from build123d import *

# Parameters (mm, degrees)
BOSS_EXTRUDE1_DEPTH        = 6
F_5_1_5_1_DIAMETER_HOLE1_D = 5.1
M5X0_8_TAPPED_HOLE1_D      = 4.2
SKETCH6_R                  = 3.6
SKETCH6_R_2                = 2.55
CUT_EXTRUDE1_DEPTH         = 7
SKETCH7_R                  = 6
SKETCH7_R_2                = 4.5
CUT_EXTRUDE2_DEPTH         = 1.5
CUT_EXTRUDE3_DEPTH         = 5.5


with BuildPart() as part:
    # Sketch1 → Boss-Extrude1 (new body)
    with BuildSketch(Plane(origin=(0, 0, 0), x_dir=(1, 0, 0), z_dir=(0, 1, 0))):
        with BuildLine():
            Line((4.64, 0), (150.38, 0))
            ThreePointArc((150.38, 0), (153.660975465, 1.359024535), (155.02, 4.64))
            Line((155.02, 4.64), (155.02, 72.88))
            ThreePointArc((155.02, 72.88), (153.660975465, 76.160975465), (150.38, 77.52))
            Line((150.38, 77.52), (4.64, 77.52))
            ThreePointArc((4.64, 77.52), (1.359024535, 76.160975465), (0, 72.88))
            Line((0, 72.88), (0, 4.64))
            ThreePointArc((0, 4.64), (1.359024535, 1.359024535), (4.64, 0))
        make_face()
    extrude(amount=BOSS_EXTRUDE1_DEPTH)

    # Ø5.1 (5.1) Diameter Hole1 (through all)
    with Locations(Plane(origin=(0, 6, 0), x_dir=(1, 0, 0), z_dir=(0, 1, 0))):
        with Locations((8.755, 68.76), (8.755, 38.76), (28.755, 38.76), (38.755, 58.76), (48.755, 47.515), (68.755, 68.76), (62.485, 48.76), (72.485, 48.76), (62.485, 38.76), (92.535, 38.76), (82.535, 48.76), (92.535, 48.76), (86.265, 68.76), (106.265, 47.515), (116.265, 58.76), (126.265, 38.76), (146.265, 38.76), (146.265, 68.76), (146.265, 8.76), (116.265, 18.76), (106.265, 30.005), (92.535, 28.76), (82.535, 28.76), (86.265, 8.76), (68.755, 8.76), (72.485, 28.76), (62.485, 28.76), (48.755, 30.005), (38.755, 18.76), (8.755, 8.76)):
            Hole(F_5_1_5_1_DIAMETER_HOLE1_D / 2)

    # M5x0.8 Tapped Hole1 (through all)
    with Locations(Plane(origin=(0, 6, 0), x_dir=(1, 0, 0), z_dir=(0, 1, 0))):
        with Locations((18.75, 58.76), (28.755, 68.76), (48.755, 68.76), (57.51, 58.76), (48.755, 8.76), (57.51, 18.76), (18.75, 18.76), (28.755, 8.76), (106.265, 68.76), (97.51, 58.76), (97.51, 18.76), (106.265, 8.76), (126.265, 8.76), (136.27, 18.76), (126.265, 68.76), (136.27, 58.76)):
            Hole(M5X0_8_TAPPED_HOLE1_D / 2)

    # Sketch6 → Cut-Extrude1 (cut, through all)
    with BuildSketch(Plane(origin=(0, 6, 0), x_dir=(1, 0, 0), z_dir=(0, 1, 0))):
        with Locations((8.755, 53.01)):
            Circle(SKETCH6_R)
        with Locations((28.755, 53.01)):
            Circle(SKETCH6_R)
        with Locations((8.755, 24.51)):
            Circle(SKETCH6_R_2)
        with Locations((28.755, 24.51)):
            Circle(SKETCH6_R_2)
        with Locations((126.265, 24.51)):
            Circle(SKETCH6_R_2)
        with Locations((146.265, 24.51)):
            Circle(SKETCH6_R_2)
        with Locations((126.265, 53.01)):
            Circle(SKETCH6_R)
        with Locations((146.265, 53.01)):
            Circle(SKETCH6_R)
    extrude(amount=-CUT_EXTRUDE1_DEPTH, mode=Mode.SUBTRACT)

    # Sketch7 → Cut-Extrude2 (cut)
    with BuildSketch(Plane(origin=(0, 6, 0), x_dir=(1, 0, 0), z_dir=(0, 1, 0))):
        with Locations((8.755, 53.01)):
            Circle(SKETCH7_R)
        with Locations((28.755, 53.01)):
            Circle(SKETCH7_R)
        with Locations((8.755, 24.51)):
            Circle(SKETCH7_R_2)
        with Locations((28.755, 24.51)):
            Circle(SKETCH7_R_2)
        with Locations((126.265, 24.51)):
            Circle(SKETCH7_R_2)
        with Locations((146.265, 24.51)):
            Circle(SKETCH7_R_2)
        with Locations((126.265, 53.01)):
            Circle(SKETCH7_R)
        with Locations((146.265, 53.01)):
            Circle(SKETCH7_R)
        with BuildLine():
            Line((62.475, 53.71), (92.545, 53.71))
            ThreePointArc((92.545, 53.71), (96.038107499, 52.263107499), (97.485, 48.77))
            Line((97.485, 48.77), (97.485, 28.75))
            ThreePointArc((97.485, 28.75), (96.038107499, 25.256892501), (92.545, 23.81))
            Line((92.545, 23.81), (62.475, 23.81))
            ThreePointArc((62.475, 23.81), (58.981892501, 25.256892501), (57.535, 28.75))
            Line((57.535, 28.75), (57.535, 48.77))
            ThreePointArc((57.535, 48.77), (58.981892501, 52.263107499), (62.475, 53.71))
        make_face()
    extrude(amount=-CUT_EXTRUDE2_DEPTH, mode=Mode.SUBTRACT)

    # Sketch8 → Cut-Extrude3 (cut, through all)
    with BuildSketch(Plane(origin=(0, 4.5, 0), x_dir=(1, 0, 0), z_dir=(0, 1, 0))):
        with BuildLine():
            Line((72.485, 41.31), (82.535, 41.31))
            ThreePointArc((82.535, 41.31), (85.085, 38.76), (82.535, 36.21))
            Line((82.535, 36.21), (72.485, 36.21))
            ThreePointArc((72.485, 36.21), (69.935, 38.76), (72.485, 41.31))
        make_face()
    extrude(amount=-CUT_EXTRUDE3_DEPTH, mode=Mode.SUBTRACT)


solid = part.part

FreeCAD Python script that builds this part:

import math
import FreeCAD as App
import Part
import Sketcher
from FreeCAD import Vector
Q = App.Units.Quantity

doc = App.newDocument("Part")
body = doc.addObject("PartDesign::Body", "Body")

sketch1 = body.newObject("Sketcher::SketchObject", "Sketch")
sketch1.AttachmentSupport = (doc.getObject("XZ_Plane"), [""])
sketch1.MapMode = "FlatFace"
sketch1.addGeometry(Part.LineSegment(Vector(4.6, 0, 0), Vector(150.4, 0, 0)), False)
sketch1.addGeometry(Part.ArcOfCircle(Part.Circle(Vector(150.4, -4.6, 0), Vector(0, 0, 1), 4.6), math.radians(0), math.radians(90)), False)
sketch1.addGeometry(Part.LineSegment(Vector(155, -4.6, 0), Vector(155, -72.9, 0)), False)
sketch1.addGeometry(Part.ArcOfCircle(Part.Circle(Vector(150.4, -72.9, 0), Vector(0, 0, 1), 4.6), math.radians(-90), math.radians(0)), False)
sketch1.addGeometry(Part.LineSegment(Vector(150.4, -77.5, 0), Vector(4.6, -77.5, 0)), False)
sketch1.addGeometry(Part.ArcOfCircle(Part.Circle(Vector(4.6, -72.9, 0), Vector(0, 0, 1), 4.6), math.radians(180), math.radians(270)), False)
sketch1.addGeometry(Part.LineSegment(Vector(0, -72.9, 0), Vector(0, -4.6, 0)), False)
sketch1.addGeometry(Part.ArcOfCircle(Part.Circle(Vector(4.6, -4.6, 0), Vector(0, 0, 1), 4.6), math.radians(90), math.radians(180)), False)
sketch1.addConstraint(Sketcher.Constraint("Tangent", 0, 2, 1, 2))
sketch1.addConstraint(Sketcher.Constraint("Tangent", 1, 1, 2, 1))
sketch1.addConstraint(Sketcher.Constraint("Tangent", 2, 2, 3, 2))
sketch1.addConstraint(Sketcher.Constraint("Tangent", 3, 1, 4, 1))
sketch1.addConstraint(Sketcher.Constraint("Tangent", 4, 2, 5, 2))
sketch1.addConstraint(Sketcher.Constraint("Tangent", 5, 1, 6, 1))
sketch1.addConstraint(Sketcher.Constraint("Tangent", 6, 2, 7, 2))
sketch1.addConstraint(Sketcher.Constraint("Tangent", 7, 1, 0, 1))
sketch1.addConstraint(Sketcher.Constraint("Horizontal", 0))
sketch1.addConstraint(Sketcher.Constraint("Vertical", 2))
sketch1.addConstraint(Sketcher.Constraint("Horizontal", 4))
sketch1.addConstraint(Sketcher.Constraint("Vertical", 6))
sketch1.addConstraint(Sketcher.Constraint("Equal", 1, 3))
sketch1.addConstraint(Sketcher.Constraint("Equal", 3, 5))
sketch1.addConstraint(Sketcher.Constraint("Equal", 5, 7))
sketch1.addConstraint(Sketcher.Constraint("PointOnObject", 0, 2, -1))
sketch1.addConstraint(Sketcher.Constraint("PointOnObject", 5, 1, -2))
sketch1.addConstraint(Sketcher.Constraint("Radius", 1, Q("4.64 mm")))
sketch1.addConstraint(Sketcher.Constraint("DistanceX", 0, 1, 0, 2, Q("145.74 mm")))
sketch1.addConstraint(Sketcher.Constraint("DistanceY", 2, 2, 2, 1, Q("68.24 mm")))
pad1 = body.newObject("PartDesign::Pad", "Pad")
pad1.Profile = sketch1
pad1.Length = 6
pad1.Reversed = True

sketch2 = body.newObject("Sketcher::SketchObject", "Sketch001")
sketch2.AttachmentSupport = (doc.getObject("XZ_Plane"), [""])
sketch2.MapMode = "FlatFace"
sketch2.AttachmentOffset = App.Placement(Vector(0, 0, -6), App.Rotation())
sketch2.addGeometry(Part.Circle(Vector(8.8, -68.8, 0), Vector(0, 0, 1), 2.5), False)
sketch2.addGeometry(Part.Circle(Vector(8.8, -38.8, 0), Vector(0, 0, 1), 2.5), False)
sketch2.addGeometry(Part.Circle(Vector(28.8, -38.8, 0), Vector(0, 0, 1), 2.5), False)
sketch2.addGeometry(Part.Circle(Vector(38.8, -58.8, 0), Vector(0, 0, 1), 2.5), False)
sketch2.addGeometry(Part.Circle(Vector(48.8, -47.5, 0), Vector(0, 0, 1), 2.5), False)
sketch2.addGeometry(Part.Circle(Vector(68.8, -68.8, 0), Vector(0, 0, 1), 2.5), False)
sketch2.addGeometry(Part.Circle(Vector(62.5, -48.8, 0), Vector(0, 0, 1), 2.5), False)
sketch2.addGeometry(Part.Circle(Vector(72.5, -48.8, 0), Vector(0, 0, 1), 2.5), False)
sketch2.addGeometry(Part.Circle(Vector(62.5, -38.8, 0), Vector(0, 0, 1), 2.5), False)
sketch2.addGeometry(Part.Circle(Vector(92.5, -38.8, 0), Vector(0, 0, 1), 2.5), False)
sketch2.addGeometry(Part.Circle(Vector(82.5, -48.8, 0), Vector(0, 0, 1), 2.5), False)
sketch2.addGeometry(Part.Circle(Vector(92.5, -48.8, 0), Vector(0, 0, 1), 2.5), False)
sketch2.addGeometry(Part.Circle(Vector(86.3, -68.8, 0), Vector(0, 0, 1), 2.5), False)
sketch2.addGeometry(Part.Circle(Vector(106.3, -47.5, 0), Vector(0, 0, 1), 2.5), False)
sketch2.addGeometry(Part.Circle(Vector(116.3, -58.8, 0), Vector(0, 0, 1), 2.5), False)
sketch2.addGeometry(Part.Circle(Vector(126.3, -38.8, 0), Vector(0, 0, 1), 2.5), False)
sketch2.addGeometry(Part.Circle(Vector(146.3, -38.8, 0), Vector(0, 0, 1), 2.5), False)
sketch2.addGeometry(Part.Circle(Vector(146.3, -68.8, 0), Vector(0, 0, 1), 2.5), False)
sketch2.addGeometry(Part.Circle(Vector(146.3, -8.8, 0), Vector(0, 0, 1), 2.5), False)
sketch2.addGeometry(Part.Circle(Vector(116.3, -18.8, 0), Vector(0, 0, 1), 2.5), False)
sketch2.addGeometry(Part.Circle(Vector(106.3, -30, 0), Vector(0, 0, 1), 2.5), False)
sketch2.addGeometry(Part.Circle(Vector(92.5, -28.8, 0), Vector(0, 0, 1), 2.5), False)
sketch2.addGeometry(Part.Circle(Vector(82.5, -28.8, 0), Vector(0, 0, 1), 2.5), False)
sketch2.addGeometry(Part.Circle(Vector(86.3, -8.8, 0), Vector(0, 0, 1), 2.5), False)
sketch2.addGeometry(Part.Circle(Vector(68.8, -8.8, 0), Vector(0, 0, 1), 2.5), False)
sketch2.addGeometry(Part.Circle(Vector(72.5, -28.8, 0), Vector(0, 0, 1), 2.5), False)
sketch2.addGeometry(Part.Circle(Vector(62.5, -28.8, 0), Vector(0, 0, 1), 2.5), False)
sketch2.addGeometry(Part.Circle(Vector(48.8, -30, 0), Vector(0, 0, 1), 2.5), False)
sketch2.addGeometry(Part.Circle(Vector(38.8, -18.8, 0), Vector(0, 0, 1), 2.5), False)
sketch2.addGeometry(Part.Circle(Vector(8.8, -8.8, 0), Vector(0, 0, 1), 2.5), False)
sketch2.addConstraint(Sketcher.Constraint("Equal", 0, 1))
sketch2.addConstraint(Sketcher.Constraint("Equal", 1, 2))
sketch2.addConstraint(Sketcher.Constraint("Equal", 2, 3))
sketch2.addConstraint(Sketcher.Constraint("Equal", 3, 4))
sketch2.addConstraint(Sketcher.Constraint("Equal", 4, 5))
sketch2.addConstraint(Sketcher.Constraint("Equal", 5, 6))
sketch2.addConstraint(Sketcher.Constraint("Equal", 6, 7))
sketch2.addConstraint(Sketcher.Constraint("Equal", 7, 8))
sketch2.addConstraint(Sketcher.Constraint("Equal", 8, 9))
sketch2.addConstraint(Sketcher.Constraint("Equal", 9, 10))
sketch2.addConstraint(Sketcher.Constraint("Equal", 10, 11))
sketch2.addConstraint(Sketcher.Constraint("Equal", 11, 12))
sketch2.addConstraint(Sketcher.Constraint("Equal", 12, 13))
sketch2.addConstraint(Sketcher.Constraint("Equal", 13, 14))
sketch2.addConstraint(Sketcher.Constraint("Equal", 14, 15))
sketch2.addConstraint(Sketcher.Constraint("Equal", 15, 16))
sketch2.addConstraint(Sketcher.Constraint("Equal", 16, 17))
sketch2.addConstraint(Sketcher.Constraint("Equal", 17, 18))
sketch2.addConstraint(Sketcher.Constraint("Equal", 18, 19))
sketch2.addConstraint(Sketcher.Constraint("Equal", 19, 20))
sketch2.addConstraint(Sketcher.Constraint("Equal", 20, 21))
sketch2.addConstraint(Sketcher.Constraint("Equal", 21, 22))
sketch2.addConstraint(Sketcher.Constraint("Equal", 22, 23))
sketch2.addConstraint(Sketcher.Constraint("Equal", 23, 24))
sketch2.addConstraint(Sketcher.Constraint("Equal", 24, 25))
sketch2.addConstraint(Sketcher.Constraint("Equal", 25, 26))
sketch2.addConstraint(Sketcher.Constraint("Equal", 26, 27))
sketch2.addConstraint(Sketcher.Constraint("Equal", 27, 28))
sketch2.addConstraint(Sketcher.Constraint("Equal", 28, 29))
sketch2.addConstraint(Sketcher.Constraint("Horizontal", 1, 3, 2, 3))
sketch2.addConstraint(Sketcher.Constraint("Horizontal", 0, 3, 5, 3))
sketch2.addConstraint(Sketcher.Constraint("Horizontal", 6, 3, 7, 3))
sketch2.addConstraint(Sketcher.Constraint("Horizontal", 2, 3, 8, 3))
sketch2.addConstraint(Sketcher.Constraint("Horizontal", 8, 3, 9, 3))
sketch2.addConstraint(Sketcher.Constraint("Horizontal", 7, 3, 10, 3))
sketch2.addConstraint(Sketcher.Constraint("Horizontal", 10, 3, 11, 3))
sketch2.addConstraint(Sketcher.Constraint("Horizontal", 5, 3, 12, 3))
sketch2.addConstraint(Sketcher.Constraint("Horizontal", 4, 3, 13, 3))
sketch2.addConstraint(Sketcher.Constraint("Horizontal", 3, 3, 14, 3))
sketch2.addConstraint(Sketcher.Constraint("Horizontal", 9, 3, 15, 3))
sketch2.addConstraint(Sketcher.Constraint("Horizontal", 15, 3, 16, 3))
sketch2.addConstraint(Sketcher.Constraint("Horizontal", 12, 3, 17, 3))
sketch2.addConstraint(Sketcher.Constraint("Horizontal", 21, 3, 22, 3))
sketch2.addConstraint(Sketcher.Constraint("Horizontal", 18, 3, 23, 3))
sketch2.addConstraint(Sketcher.Constraint("Horizontal", 23, 3, 24, 3))
sketch2.addConstraint(Sketcher.Constraint("Horizontal", 22, 3, 25, 3))
sketch2.addConstraint(Sketcher.Constraint("Horizontal", 25, 3, 26, 3))
sketch2.addConstraint(Sketcher.Constraint("Horizontal", 20, 3, 27, 3))
sketch2.addConstraint(Sketcher.Constraint("Horizontal", 19, 3, 28, 3))
sketch2.addConstraint(Sketcher.Constraint("Horizontal", 24, 3, 29, 3))
sketch2.addConstraint(Sketcher.Constraint("Vertical", 0, 3, 1, 3))
sketch2.addConstraint(Sketcher.Constraint("Vertical", 6, 3, 8, 3))
sketch2.addConstraint(Sketcher.Constraint("Vertical", 9, 3, 11, 3))
sketch2.addConstraint(Sketcher.Constraint("Vertical", 16, 3, 17, 3))
sketch2.addConstraint(Sketcher.Constraint("Vertical", 17, 3, 18, 3))
sketch2.addConstraint(Sketcher.Constraint("Vertical", 14, 3, 19, 3))
sketch2.addConstraint(Sketcher.Constraint("Vertical", 13, 3, 20, 3))
sketch2.addConstraint(Sketcher.Constraint("Vertical", 11, 3, 21, 3))
sketch2.addConstraint(Sketcher.Constraint("Vertical", 10, 3, 22, 3))
sketch2.addConstraint(Sketcher.Constraint("Vertical", 12, 3, 23, 3))
sketch2.addConstraint(Sketcher.Constraint("Vertical", 5, 3, 24, 3))
sketch2.addConstraint(Sketcher.Constraint("Vertical", 7, 3, 25, 3))
sketch2.addConstraint(Sketcher.Constraint("Vertical", 8, 3, 26, 3))
sketch2.addConstraint(Sketcher.Constraint("Vertical", 4, 3, 27, 3))
sketch2.addConstraint(Sketcher.Constraint("Vertical", 3, 3, 28, 3))
sketch2.addConstraint(Sketcher.Constraint("Vertical", 1, 3, 29, 3))
sketch2.addConstraint(Sketcher.Constraint("Diameter", 0, Q("5.1 mm")))
sketch2.addConstraint(Sketcher.Constraint("DistanceY", 0, 3, 1, 3, Q("30 mm")))
sketch2.addConstraint(Sketcher.Constraint("DistanceX", 1, 3, 2, 3, Q("20 mm")))
sketch2.addConstraint(Sketcher.Constraint("DistanceX", 2, 3, 3, 3, Q("10 mm")))
sketch2.addConstraint(Sketcher.Constraint("DistanceY", 3, 3, 2, 3, Q("20 mm")))
sketch2.addConstraint(Sketcher.Constraint("DistanceX", 3, 3, 4, 3, Q("10 mm")))
sketch2.addConstraint(Sketcher.Constraint("DistanceX", 4, 3, 5, 3, Q("20 mm")))
sketch2.addConstraint(Sketcher.Constraint("DistanceY", 5, 3, 6, 3, Q("20 mm")))
sketch2.addConstraint(Sketcher.Constraint("DistanceX", 6, 3, 7, 3, Q("10 mm")))
sketch2.addConstraint(Sketcher.Constraint("DistanceX", 10, 3, 9, 3, Q("10 mm")))
sketch2.addConstraint(Sketcher.Constraint("DistanceX", 12, 3, 13, 3, Q("20 mm")))
sketch2.addConstraint(Sketcher.Constraint("DistanceX", 13, 3, 14, 3, Q("10 mm")))
sketch2.addConstraint(Sketcher.Constraint("DistanceX", 13, 3, 15, 3, Q("20 mm")))
sketch2.addConstraint(Sketcher.Constraint("DistanceX", 15, 3, 16, 3, Q("20 mm")))
sketch2.addConstraint(Sketcher.Constraint("DistanceY", 16, 3, 18, 3, Q("30 mm")))
sketch2.addConstraint(Sketcher.Constraint("DistanceY", 15, 3, 19, 3, Q("20 mm")))
sketch2.addConstraint(Sketcher.Constraint("DistanceY", 9, 3, 21, 3, Q("10 mm")))
sketch2.addConstraint(Sketcher.Constraint("DistanceY", 0, 3, -1, 1, Q("68.76 mm")))
sketch2.addConstraint(Sketcher.Constraint("DistanceX", 4, 3, 6, 3, Q("13.73 mm")))
sketch2.addConstraint(Sketcher.Constraint("DistanceX", 7, 3, 9, 3, Q("20.05 mm")))
sketch2.addConstraint(Sketcher.Constraint("DistanceX", 5, 3, 12, 3, Q("17.51 mm")))
sketch2.addConstraint(Sketcher.Constraint("DistanceY", 13, 3, 20, 3, Q("17.51 mm")))
sketch2.addConstraint(Sketcher.Constraint("DistanceX", -1, 1, 0, 3, Q("8.755 mm")))
sketch2.addConstraint(Sketcher.Constraint("DistanceY", 4, 3, -1, 1, Q("47.515 mm")))
doc.recompute()
hole = body.newObject("PartDesign::Hole", "Hole")
hole.Profile = sketch2
hole.ThreadType = "None"
hole.Diameter = 5.1
hole.DepthType = "ThroughAll"
hole.Reversed = True

sketch3 = body.newObject("Sketcher::SketchObject", "Sketch002")
sketch3.AttachmentSupport = (doc.getObject("XZ_Plane"), [""])
sketch3.MapMode = "FlatFace"
sketch3.AttachmentOffset = App.Placement(Vector(0, 0, -6), App.Rotation())
sketch3.addGeometry(Part.Circle(Vector(18.8, -58.8, 0), Vector(0, 0, 1), 2.1), False)
sketch3.addGeometry(Part.Circle(Vector(28.8, -68.8, 0), Vector(0, 0, 1), 2.1), False)
sketch3.addGeometry(Part.Circle(Vector(48.8, -68.8, 0), Vector(0, 0, 1), 2.1), False)
sketch3.addGeometry(Part.Circle(Vector(57.5, -58.8, 0), Vector(0, 0, 1), 2.1), False)
sketch3.addGeometry(Part.Circle(Vector(48.8, -8.8, 0), Vector(0, 0, 1), 2.1), False)
sketch3.addGeometry(Part.Circle(Vector(57.5, -18.8, 0), Vector(0, 0, 1), 2.1), False)
sketch3.addGeometry(Part.Circle(Vector(18.8, -18.8, 0), Vector(0, 0, 1), 2.1), False)
sketch3.addGeometry(Part.Circle(Vector(28.8, -8.8, 0), Vector(0, 0, 1), 2.1), False)
sketch3.addGeometry(Part.Circle(Vector(106.3, -68.8, 0), Vector(0, 0, 1), 2.1), False)
sketch3.addGeometry(Part.Circle(Vector(97.5, -58.8, 0), Vector(0, 0, 1), 2.1), False)
sketch3.addGeometry(Part.Circle(Vector(97.5, -18.8, 0), Vector(0, 0, 1), 2.1), False)
sketch3.addGeometry(Part.Circle(Vector(106.3, -8.8, 0), Vector(0, 0, 1), 2.1), False)
sketch3.addGeometry(Part.Circle(Vector(126.3, -8.8, 0), Vector(0, 0, 1), 2.1), False)
sketch3.addGeometry(Part.Circle(Vector(136.3, -18.8, 0), Vector(0, 0, 1), 2.1), False)
sketch3.addGeometry(Part.Circle(Vector(126.3, -68.8, 0), Vector(0, 0, 1), 2.1), False)
sketch3.addGeometry(Part.Circle(Vector(136.3, -58.8, 0), Vector(0, 0, 1), 2.1), False)
sketch3.addConstraint(Sketcher.Constraint("Equal", 0, 1))
sketch3.addConstraint(Sketcher.Constraint("Equal", 1, 2))
sketch3.addConstraint(Sketcher.Constraint("Equal", 2, 3))
sketch3.addConstraint(Sketcher.Constraint("Equal", 3, 4))
sketch3.addConstraint(Sketcher.Constraint("Equal", 4, 5))
sketch3.addConstraint(Sketcher.Constraint("Equal", 5, 6))
sketch3.addConstraint(Sketcher.Constraint("Equal", 6, 7))
sketch3.addConstraint(Sketcher.Constraint("Equal", 7, 8))
sketch3.addConstraint(Sketcher.Constraint("Equal", 8, 9))
sketch3.addConstraint(Sketcher.Constraint("Equal", 9, 10))
sketch3.addConstraint(Sketcher.Constraint("Equal", 10, 11))
sketch3.addConstraint(Sketcher.Constraint("Equal", 11, 12))
sketch3.addConstraint(Sketcher.Constraint("Equal", 12, 13))
sketch3.addConstraint(Sketcher.Constraint("Equal", 13, 14))
sketch3.addConstraint(Sketcher.Constraint("Equal", 14, 15))
sketch3.addConstraint(Sketcher.Constraint("Horizontal", 1, 3, 2, 3))
sketch3.addConstraint(Sketcher.Constraint("Horizontal", 0, 3, 3, 3))
sketch3.addConstraint(Sketcher.Constraint("Horizontal", 5, 3, 6, 3))
sketch3.addConstraint(Sketcher.Constraint("Horizontal", 4, 3, 7, 3))
sketch3.addConstraint(Sketcher.Constraint("Horizontal", 2, 3, 8, 3))
sketch3.addConstraint(Sketcher.Constraint("Horizontal", 3, 3, 9, 3))
sketch3.addConstraint(Sketcher.Constraint("Horizontal", 6, 3, 10, 3))
sketch3.addConstraint(Sketcher.Constraint("Horizontal", 7, 3, 11, 3))
sketch3.addConstraint(Sketcher.Constraint("Horizontal", 11, 3, 12, 3))
sketch3.addConstraint(Sketcher.Constraint("Horizontal", 10, 3, 13, 3))
sketch3.addConstraint(Sketcher.Constraint("Horizontal", 8, 3, 14, 3))
sketch3.addConstraint(Sketcher.Constraint("Horizontal", 9, 3, 15, 3))
sketch3.addConstraint(Sketcher.Constraint("Vertical", 2, 3, 4, 3))
sketch3.addConstraint(Sketcher.Constraint("Vertical", 3, 3, 5, 3))
sketch3.addConstraint(Sketcher.Constraint("Vertical", 0, 3, 6, 3))
sketch3.addConstraint(Sketcher.Constraint("Vertical", 1, 3, 7, 3))
sketch3.addConstraint(Sketcher.Constraint("Vertical", 9, 3, 10, 3))
sketch3.addConstraint(Sketcher.Constraint("Vertical", 8, 3, 11, 3))
sketch3.addConstraint(Sketcher.Constraint("Vertical", 12, 3, 14, 3))
sketch3.addConstraint(Sketcher.Constraint("Vertical", 13, 3, 15, 3))
sketch3.addConstraint(Sketcher.Constraint("Diameter", 0, Q("4.2 mm")))
sketch3.addConstraint(Sketcher.Constraint("DistanceY", 1, 3, 0, 3, Q("10 mm")))
sketch3.addConstraint(Sketcher.Constraint("DistanceX", 1, 3, 2, 3, Q("20 mm")))
sketch3.addConstraint(Sketcher.Constraint("DistanceY", 3, 3, 4, 3, Q("50 mm")))
sketch3.addConstraint(Sketcher.Constraint("DistanceY", 5, 3, 4, 3, Q("10 mm")))
sketch3.addConstraint(Sketcher.Constraint("DistanceX", 3, 3, 9, 3, Q("40 mm")))
sketch3.addConstraint(Sketcher.Constraint("DistanceX", 11, 3, 12, 3, Q("20 mm")))
sketch3.addConstraint(Sketcher.Constraint("DistanceX", -1, 1, 0, 3, Q("18.75 mm")))
sketch3.addConstraint(Sketcher.Constraint("DistanceY", 0, 3, -1, 1, Q("58.76 mm")))
sketch3.addConstraint(Sketcher.Constraint("DistanceX", -1, 1, 3, 3, Q("57.51 mm")))
sketch3.addConstraint(Sketcher.Constraint("DistanceX", -1, 1, 13, 3, Q("136.27 mm")))
sketch3.addConstraint(Sketcher.Constraint("DistanceX", 2, 3, 8, 3, Q("57.51 mm")))
sketch3.addConstraint(Sketcher.Constraint("DistanceX", -1, 1, 1, 3, Q("28.755 mm")))
doc.recompute()
hole2 = body.newObject("PartDesign::Hole", "Hole001")
hole2.Profile = sketch3
hole2.ThreadType = "None"
hole2.Diameter = 4.2
hole2.DepthType = "ThroughAll"
hole2.Reversed = True

sketch4 = body.newObject("Sketcher::SketchObject", "Sketch003")
sketch4.AttachmentSupport = (doc.getObject("XZ_Plane"), [""])
sketch4.MapMode = "FlatFace"
sketch4.AttachmentOffset = App.Placement(Vector(0, 0, -6), App.Rotation())
sketch4.addGeometry(Part.Circle(Vector(8.8, -53, 0), Vector(0, 0, 1), 3.6), False)
sketch4.addGeometry(Part.Circle(Vector(28.8, -53, 0), Vector(0, 0, 1), 3.6), False)
sketch4.addGeometry(Part.Circle(Vector(8.8, -24.5, 0), Vector(0, 0, 1), 2.5), False)
sketch4.addGeometry(Part.Circle(Vector(28.8, -24.5, 0), Vector(0, 0, 1), 2.5), False)
sketch4.addGeometry(Part.Circle(Vector(126.3, -24.5, 0), Vector(0, 0, 1), 2.5), False)
sketch4.addGeometry(Part.Circle(Vector(146.3, -24.5, 0), Vector(0, 0, 1), 2.5), False)
sketch4.addGeometry(Part.Circle(Vector(126.3, -53, 0), Vector(0, 0, 1), 3.6), False)
sketch4.addGeometry(Part.Circle(Vector(146.3, -53, 0), Vector(0, 0, 1), 3.6), False)
sketch4.addConstraint(Sketcher.Constraint("Equal", 0, 1))
sketch4.addConstraint(Sketcher.Constraint("Equal", 2, 3))
sketch4.addConstraint(Sketcher.Constraint("Equal", 3, 4))
sketch4.addConstraint(Sketcher.Constraint("Equal", 4, 5))
sketch4.addConstraint(Sketcher.Constraint("Equal", 1, 6))
sketch4.addConstraint(Sketcher.Constraint("Equal", 6, 7))
sketch4.addConstraint(Sketcher.Constraint("Horizontal", 0, 3, 1, 3))
sketch4.addConstraint(Sketcher.Constraint("Horizontal", 2, 3, 3, 3))
sketch4.addConstraint(Sketcher.Constraint("Horizontal", 3, 3, 4, 3))
sketch4.addConstraint(Sketcher.Constraint("Horizontal", 4, 3, 5, 3))
sketch4.addConstraint(Sketcher.Constraint("Horizontal", 1, 3, 6, 3))
sketch4.addConstraint(Sketcher.Constraint("Horizontal", 6, 3, 7, 3))
sketch4.addConstraint(Sketcher.Constraint("Vertical", 0, 3, 2, 3))
sketch4.addConstraint(Sketcher.Constraint("Vertical", 1, 3, 3, 3))
sketch4.addConstraint(Sketcher.Constraint("Vertical", 4, 3, 6, 3))
sketch4.addConstraint(Sketcher.Constraint("Vertical", 5, 3, 7, 3))
sketch4.addConstraint(Sketcher.Constraint("Diameter", 0, Q("7.2 mm")))
sketch4.addConstraint(Sketcher.Constraint("Diameter", 2, Q("5.1 mm")))
sketch4.addConstraint(Sketcher.Constraint("DistanceX", 0, 3, 1, 3, Q("20 mm")))
sketch4.addConstraint(Sketcher.Constraint("DistanceX", 4, 3, 5, 3, Q("20 mm")))
sketch4.addConstraint(Sketcher.Constraint("DistanceY", 0, 3, 2, 3, Q("28.5 mm")))
sketch4.addConstraint(Sketcher.Constraint("DistanceY", 0, 3, -1, 1, Q("53.01 mm")))
sketch4.addConstraint(Sketcher.Constraint("DistanceX", 3, 3, 4, 3, Q("97.51 mm")))
sketch4.addConstraint(Sketcher.Constraint("DistanceX", -1, 1, 0, 3, Q("8.755 mm")))
pocket1 = body.newObject("PartDesign::Pocket", "Pocket")
pocket1.Profile = sketch4
pocket1.Type = "ThroughAll"
pocket1.Reversed = True

sketch5 = body.newObject("Sketcher::SketchObject", "Sketch004")
sketch5.AttachmentSupport = (doc.getObject("XZ_Plane"), [""])
sketch5.MapMode = "FlatFace"
sketch5.AttachmentOffset = App.Placement(Vector(0, 0, -6), App.Rotation())
sketch5.addGeometry(Part.Circle(Vector(8.8, -53, 0), Vector(0, 0, 1), 6), False)
sketch5.addGeometry(Part.Circle(Vector(28.8, -53, 0), Vector(0, 0, 1), 6), False)
sketch5.addGeometry(Part.Circle(Vector(8.8, -24.5, 0), Vector(0, 0, 1), 4.5), False)
sketch5.addGeometry(Part.Circle(Vector(28.8, -24.5, 0), Vector(0, 0, 1), 4.5), False)
sketch5.addGeometry(Part.Circle(Vector(126.3, -24.5, 0), Vector(0, 0, 1), 4.5), False)
sketch5.addGeometry(Part.Circle(Vector(146.3, -24.5, 0), Vector(0, 0, 1), 4.5), False)
sketch5.addGeometry(Part.Circle(Vector(126.3, -53, 0), Vector(0, 0, 1), 6), False)
sketch5.addGeometry(Part.Circle(Vector(146.3, -53, 0), Vector(0, 0, 1), 6), False)
sketch5.addGeometry(Part.LineSegment(Vector(92.5, -53.7, 0), Vector(62.5, -53.7, 0)), False)
sketch5.addGeometry(Part.ArcOfCircle(Part.Circle(Vector(62.5, -48.8, 0), Vector(0, 0, 1), 4.9), math.radians(180), math.radians(270)), False)
sketch5.addGeometry(Part.LineSegment(Vector(57.5, -48.8, 0), Vector(57.5, -28.8, 0)), False)
sketch5.addGeometry(Part.ArcOfCircle(Part.Circle(Vector(62.5, -28.8, 0), Vector(0, 0, 1), 4.9), math.radians(90), math.radians(180)), False)
sketch5.addGeometry(Part.LineSegment(Vector(62.5, -23.8, 0), Vector(92.5, -23.8, 0)), False)
sketch5.addGeometry(Part.ArcOfCircle(Part.Circle(Vector(92.5, -28.8, 0), Vector(0, 0, 1), 4.9), math.radians(0), math.radians(90)), False)
sketch5.addGeometry(Part.LineSegment(Vector(97.5, -28.8, 0), Vector(97.5, -48.8, 0)), False)
sketch5.addGeometry(Part.ArcOfCircle(Part.Circle(Vector(92.5, -48.8, 0), Vector(0, 0, 1), 4.9), math.radians(-90), math.radians(0)), False)
sketch5.addConstraint(Sketcher.Constraint("Tangent", 8, 2, 9, 2))
sketch5.addConstraint(Sketcher.Constraint("Tangent", 9, 1, 10, 1))
sketch5.addConstraint(Sketcher.Constraint("Tangent", 10, 2, 11, 2))
sketch5.addConstraint(Sketcher.Constraint("Tangent", 11, 1, 12, 1))
sketch5.addConstraint(Sketcher.Constraint("Tangent", 12, 2, 13, 2))
sketch5.addConstraint(Sketcher.Constraint("Tangent", 13, 1, 14, 1))
sketch5.addConstraint(Sketcher.Constraint("Tangent", 14, 2, 15, 2))
sketch5.addConstraint(Sketcher.Constraint("Tangent", 15, 1, 8, 1))
sketch5.addConstraint(Sketcher.Constraint("Horizontal", 8))
sketch5.addConstraint(Sketcher.Constraint("Vertical", 10))
sketch5.addConstraint(Sketcher.Constraint("Horizontal", 12))
sketch5.addConstraint(Sketcher.Constraint("Vertical", 14))
sketch5.addConstraint(Sketcher.Constraint("Equal", 0, 1))
sketch5.addConstraint(Sketcher.Constraint("Equal", 2, 3))
sketch5.addConstraint(Sketcher.Constraint("Equal", 3, 4))
sketch5.addConstraint(Sketcher.Constraint("Equal", 4, 5))
sketch5.addConstraint(Sketcher.Constraint("Equal", 1, 6))
sketch5.addConstraint(Sketcher.Constraint("Equal", 6, 7))
sketch5.addConstraint(Sketcher.Constraint("Equal", 9, 11))
sketch5.addConstraint(Sketcher.Constraint("Equal", 11, 13))
sketch5.addConstraint(Sketcher.Constraint("Equal", 13, 15))
sketch5.addConstraint(Sketcher.Constraint("Horizontal", 0, 3, 1, 3))
sketch5.addConstraint(Sketcher.Constraint("Horizontal", 2, 3, 3, 3))
sketch5.addConstraint(Sketcher.Constraint("Horizontal", 3, 3, 4, 3))
sketch5.addConstraint(Sketcher.Constraint("Horizontal", 4, 3, 5, 3))
sketch5.addConstraint(Sketcher.Constraint("Horizontal", 1, 3, 6, 3))
sketch5.addConstraint(Sketcher.Constraint("Horizontal", 6, 3, 7, 3))
sketch5.addConstraint(Sketcher.Constraint("Vertical", 0, 3, 2, 3))
sketch5.addConstraint(Sketcher.Constraint("Vertical", 1, 3, 3, 3))
sketch5.addConstraint(Sketcher.Constraint("Vertical", 4, 3, 6, 3))
sketch5.addConstraint(Sketcher.Constraint("Vertical", 5, 3, 7, 3))
sketch5.addConstraint(Sketcher.Constraint("Diameter", 0, Q("12 mm")))
sketch5.addConstraint(Sketcher.Constraint("Diameter", 2, Q("9 mm")))
sketch5.addConstraint(Sketcher.Constraint("Radius", 9, Q("4.94 mm")))
sketch5.addConstraint(Sketcher.Constraint("DistanceX", 0, 3, 1, 3, Q("20 mm")))
sketch5.addConstraint(Sketcher.Constraint("DistanceX", 4, 3, 5, 3, Q("20 mm")))
sketch5.addConstraint(Sketcher.Constraint("DistanceX", 8, 2, 8, 1, Q("30.07 mm")))
sketch5.addConstraint(Sketcher.Constraint("DistanceY", 10, 1, 10, 2, Q("20.02 mm")))
sketch5.addConstraint(Sketcher.Constraint("DistanceY", 0, 3, 2, 3, Q("28.5 mm")))
sketch5.addConstraint(Sketcher.Constraint("DistanceY", 8, 2, 1, 3, Q("0.7 mm")))
sketch5.addConstraint(Sketcher.Constraint("DistanceY", 0, 3, -1, 1, Q("53.01 mm")))
sketch5.addConstraint(Sketcher.Constraint("DistanceX", 3, 3, 4, 3, Q("97.51 mm")))
sketch5.addConstraint(Sketcher.Constraint("DistanceX", 1, 3, 9, 3, Q("33.72 mm")))
sketch5.addConstraint(Sketcher.Constraint("DistanceX", -1, 1, 0, 3, Q("8.755 mm")))
pocket2 = body.newObject("PartDesign::Pocket", "Pocket001")
pocket2.Profile = sketch5
pocket2.Length = 1.5
pocket2.Reversed = True

sketch6 = body.newObject("Sketcher::SketchObject", "Sketch005")
sketch6.AttachmentSupport = (doc.getObject("XZ_Plane"), [""])
sketch6.MapMode = "FlatFace"
sketch6.AttachmentOffset = App.Placement(Vector(0, 0, -4.5), App.Rotation())
sketch6.addGeometry(Part.LineSegment(Vector(82.5, -41.3, 0), Vector(72.5, -41.3, 0)), False)
sketch6.addGeometry(Part.ArcOfCircle(Part.Circle(Vector(72.5, -38.8, 0), Vector(0, 0, 1), 2.5), math.radians(90), math.radians(270)), False)
sketch6.addGeometry(Part.LineSegment(Vector(72.5, -36.2, 0), Vector(82.5, -36.2, 0)), False)
sketch6.addGeometry(Part.ArcOfCircle(Part.Circle(Vector(82.5, -38.8, 0), Vector(0, 0, 1), 2.5), math.radians(-90), math.radians(90)), False)
sketch6.addConstraint(Sketcher.Constraint("Tangent", 0, 2, 1, 2))
sketch6.addConstraint(Sketcher.Constraint("Tangent", 1, 1, 2, 1))
sketch6.addConstraint(Sketcher.Constraint("Tangent", 2, 2, 3, 2))
sketch6.addConstraint(Sketcher.Constraint("Tangent", 3, 1, 0, 1))
sketch6.addConstraint(Sketcher.Constraint("Horizontal", 0))
sketch6.addConstraint(Sketcher.Constraint("Horizontal", 2))
sketch6.addConstraint(Sketcher.Constraint("Radius", 1, Q("2.55 mm")))
sketch6.addConstraint(Sketcher.Constraint("DistanceX", 0, 2, 0, 1, Q("10.05 mm")))
sketch6.addConstraint(Sketcher.Constraint("DistanceY", 1, 3, -1, 1, Q("38.76 mm")))
sketch6.addConstraint(Sketcher.Constraint("DistanceX", -1, 1, 1, 3, Q("72.485 mm")))
pocket3 = body.newObject("PartDesign::Pocket", "Pocket002")
pocket3.Profile = sketch6
pocket3.Type = "ThroughAll"
pocket3.Reversed = True

doc.recompute()
